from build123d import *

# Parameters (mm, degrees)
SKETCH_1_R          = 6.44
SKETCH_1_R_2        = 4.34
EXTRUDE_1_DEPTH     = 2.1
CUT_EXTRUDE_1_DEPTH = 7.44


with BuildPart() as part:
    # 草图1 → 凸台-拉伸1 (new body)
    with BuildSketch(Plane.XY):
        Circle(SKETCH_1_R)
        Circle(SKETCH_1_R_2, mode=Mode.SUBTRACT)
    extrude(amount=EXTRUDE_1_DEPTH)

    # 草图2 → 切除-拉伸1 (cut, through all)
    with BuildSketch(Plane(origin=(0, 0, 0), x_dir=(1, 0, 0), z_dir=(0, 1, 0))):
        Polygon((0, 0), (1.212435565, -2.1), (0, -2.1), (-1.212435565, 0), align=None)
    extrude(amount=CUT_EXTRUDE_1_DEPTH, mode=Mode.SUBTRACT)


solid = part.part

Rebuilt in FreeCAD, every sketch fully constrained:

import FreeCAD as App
import Part
import Sketcher
Q = App.Units.Quantity

doc = App.newDocument("Part")
body = doc.addObject("PartDesign::Body", "Body")

# Sketch on XY plane
sketch1 = doc.addObject("Sketcher::SketchObject", "Sketch")
body.addObject(sketch1)
sketch1.AttachmentSupport = (doc.XY_Plane, [""])
sketch1.MapMode = "FlatFace"
sketch1.addGeometry([
    Part.Circle(App.Vector(0, 0, 0), App.Vector(0, 0, 1), 6.4),
    Part.Circle(App.Vector(0, 0, 0), App.Vector(0, 0, 1), 4.3),
], False)
sketch1.addConstraint([
    Sketcher.Constraint("Coincident", 0, 3, -1, 1),
    Sketcher.Constraint("Coincident", 1, 3, -1, 1),
    Sketcher.Constraint("Diameter", 0, 12.88),
    Sketcher.Constraint("Diameter", 1, 8.68),
])
pad1 = doc.addObject("PartDesign::Pad", "Pad")
body.addObject(pad1)
pad1.Profile = sketch1
pad1.Length = 2.1

# Sketch on XZ plane
sketch2 = doc.addObject("Sketcher::SketchObject", "Sketch001")
body.addObject(sketch2)
sketch2.AttachmentSupport = (doc.XZ_Plane, [""])
sketch2.MapMode = "FlatFace"
sketch2.addGeometry([
    Part.LineSegment(App.Vector(1.2, 2.1, 0), App.Vector(0, 0, 0)),
    Part.LineSegment(App.Vector(0, 0, 0), App.Vector(-1.2, 0, 0)),
    Part.LineSegment(App.Vector(-1.2, 0, 0), App.Vector(0, 2.1, 0)),
    Part.LineSegment(App.Vector(0, 2.1, 0), App.Vector(1.2, 2.1, 0)),
], False)
sketch2.addConstraint([
    Sketcher.Constraint("Coincident", 0, 2, 1, 1),
    Sketcher.Constraint("Coincident", 1, 2, 2, 1),
    Sketcher.Constraint("Coincident", 2, 2, 3, 1),
    Sketcher.Constraint("Coincident", 3, 2, 0, 1),
    Sketcher.Constraint("Horizontal", 1),
    Sketcher.Constraint("Horizontal", 3),
    Sketcher.Constraint("Coincident", 0, 2, -1, 1),
    Sketcher.Constraint("PointOnObject", 2, 2, -2),
    Sketcher.Constraint("Parallel", 0, 2),
    Sketcher.Constraint("Angle", 0, Q("-120 deg")),
    Sketcher.Constraint("DistanceY", -1, 1, 2, 2, 2.1),
])
pocket1 = doc.addObject("PartDesign::Pocket", "Pocket")
body.addObject(pocket1)
pocket1.Profile = sketch2
pocket1.Type = "ThroughAll"

doc.recompute()
